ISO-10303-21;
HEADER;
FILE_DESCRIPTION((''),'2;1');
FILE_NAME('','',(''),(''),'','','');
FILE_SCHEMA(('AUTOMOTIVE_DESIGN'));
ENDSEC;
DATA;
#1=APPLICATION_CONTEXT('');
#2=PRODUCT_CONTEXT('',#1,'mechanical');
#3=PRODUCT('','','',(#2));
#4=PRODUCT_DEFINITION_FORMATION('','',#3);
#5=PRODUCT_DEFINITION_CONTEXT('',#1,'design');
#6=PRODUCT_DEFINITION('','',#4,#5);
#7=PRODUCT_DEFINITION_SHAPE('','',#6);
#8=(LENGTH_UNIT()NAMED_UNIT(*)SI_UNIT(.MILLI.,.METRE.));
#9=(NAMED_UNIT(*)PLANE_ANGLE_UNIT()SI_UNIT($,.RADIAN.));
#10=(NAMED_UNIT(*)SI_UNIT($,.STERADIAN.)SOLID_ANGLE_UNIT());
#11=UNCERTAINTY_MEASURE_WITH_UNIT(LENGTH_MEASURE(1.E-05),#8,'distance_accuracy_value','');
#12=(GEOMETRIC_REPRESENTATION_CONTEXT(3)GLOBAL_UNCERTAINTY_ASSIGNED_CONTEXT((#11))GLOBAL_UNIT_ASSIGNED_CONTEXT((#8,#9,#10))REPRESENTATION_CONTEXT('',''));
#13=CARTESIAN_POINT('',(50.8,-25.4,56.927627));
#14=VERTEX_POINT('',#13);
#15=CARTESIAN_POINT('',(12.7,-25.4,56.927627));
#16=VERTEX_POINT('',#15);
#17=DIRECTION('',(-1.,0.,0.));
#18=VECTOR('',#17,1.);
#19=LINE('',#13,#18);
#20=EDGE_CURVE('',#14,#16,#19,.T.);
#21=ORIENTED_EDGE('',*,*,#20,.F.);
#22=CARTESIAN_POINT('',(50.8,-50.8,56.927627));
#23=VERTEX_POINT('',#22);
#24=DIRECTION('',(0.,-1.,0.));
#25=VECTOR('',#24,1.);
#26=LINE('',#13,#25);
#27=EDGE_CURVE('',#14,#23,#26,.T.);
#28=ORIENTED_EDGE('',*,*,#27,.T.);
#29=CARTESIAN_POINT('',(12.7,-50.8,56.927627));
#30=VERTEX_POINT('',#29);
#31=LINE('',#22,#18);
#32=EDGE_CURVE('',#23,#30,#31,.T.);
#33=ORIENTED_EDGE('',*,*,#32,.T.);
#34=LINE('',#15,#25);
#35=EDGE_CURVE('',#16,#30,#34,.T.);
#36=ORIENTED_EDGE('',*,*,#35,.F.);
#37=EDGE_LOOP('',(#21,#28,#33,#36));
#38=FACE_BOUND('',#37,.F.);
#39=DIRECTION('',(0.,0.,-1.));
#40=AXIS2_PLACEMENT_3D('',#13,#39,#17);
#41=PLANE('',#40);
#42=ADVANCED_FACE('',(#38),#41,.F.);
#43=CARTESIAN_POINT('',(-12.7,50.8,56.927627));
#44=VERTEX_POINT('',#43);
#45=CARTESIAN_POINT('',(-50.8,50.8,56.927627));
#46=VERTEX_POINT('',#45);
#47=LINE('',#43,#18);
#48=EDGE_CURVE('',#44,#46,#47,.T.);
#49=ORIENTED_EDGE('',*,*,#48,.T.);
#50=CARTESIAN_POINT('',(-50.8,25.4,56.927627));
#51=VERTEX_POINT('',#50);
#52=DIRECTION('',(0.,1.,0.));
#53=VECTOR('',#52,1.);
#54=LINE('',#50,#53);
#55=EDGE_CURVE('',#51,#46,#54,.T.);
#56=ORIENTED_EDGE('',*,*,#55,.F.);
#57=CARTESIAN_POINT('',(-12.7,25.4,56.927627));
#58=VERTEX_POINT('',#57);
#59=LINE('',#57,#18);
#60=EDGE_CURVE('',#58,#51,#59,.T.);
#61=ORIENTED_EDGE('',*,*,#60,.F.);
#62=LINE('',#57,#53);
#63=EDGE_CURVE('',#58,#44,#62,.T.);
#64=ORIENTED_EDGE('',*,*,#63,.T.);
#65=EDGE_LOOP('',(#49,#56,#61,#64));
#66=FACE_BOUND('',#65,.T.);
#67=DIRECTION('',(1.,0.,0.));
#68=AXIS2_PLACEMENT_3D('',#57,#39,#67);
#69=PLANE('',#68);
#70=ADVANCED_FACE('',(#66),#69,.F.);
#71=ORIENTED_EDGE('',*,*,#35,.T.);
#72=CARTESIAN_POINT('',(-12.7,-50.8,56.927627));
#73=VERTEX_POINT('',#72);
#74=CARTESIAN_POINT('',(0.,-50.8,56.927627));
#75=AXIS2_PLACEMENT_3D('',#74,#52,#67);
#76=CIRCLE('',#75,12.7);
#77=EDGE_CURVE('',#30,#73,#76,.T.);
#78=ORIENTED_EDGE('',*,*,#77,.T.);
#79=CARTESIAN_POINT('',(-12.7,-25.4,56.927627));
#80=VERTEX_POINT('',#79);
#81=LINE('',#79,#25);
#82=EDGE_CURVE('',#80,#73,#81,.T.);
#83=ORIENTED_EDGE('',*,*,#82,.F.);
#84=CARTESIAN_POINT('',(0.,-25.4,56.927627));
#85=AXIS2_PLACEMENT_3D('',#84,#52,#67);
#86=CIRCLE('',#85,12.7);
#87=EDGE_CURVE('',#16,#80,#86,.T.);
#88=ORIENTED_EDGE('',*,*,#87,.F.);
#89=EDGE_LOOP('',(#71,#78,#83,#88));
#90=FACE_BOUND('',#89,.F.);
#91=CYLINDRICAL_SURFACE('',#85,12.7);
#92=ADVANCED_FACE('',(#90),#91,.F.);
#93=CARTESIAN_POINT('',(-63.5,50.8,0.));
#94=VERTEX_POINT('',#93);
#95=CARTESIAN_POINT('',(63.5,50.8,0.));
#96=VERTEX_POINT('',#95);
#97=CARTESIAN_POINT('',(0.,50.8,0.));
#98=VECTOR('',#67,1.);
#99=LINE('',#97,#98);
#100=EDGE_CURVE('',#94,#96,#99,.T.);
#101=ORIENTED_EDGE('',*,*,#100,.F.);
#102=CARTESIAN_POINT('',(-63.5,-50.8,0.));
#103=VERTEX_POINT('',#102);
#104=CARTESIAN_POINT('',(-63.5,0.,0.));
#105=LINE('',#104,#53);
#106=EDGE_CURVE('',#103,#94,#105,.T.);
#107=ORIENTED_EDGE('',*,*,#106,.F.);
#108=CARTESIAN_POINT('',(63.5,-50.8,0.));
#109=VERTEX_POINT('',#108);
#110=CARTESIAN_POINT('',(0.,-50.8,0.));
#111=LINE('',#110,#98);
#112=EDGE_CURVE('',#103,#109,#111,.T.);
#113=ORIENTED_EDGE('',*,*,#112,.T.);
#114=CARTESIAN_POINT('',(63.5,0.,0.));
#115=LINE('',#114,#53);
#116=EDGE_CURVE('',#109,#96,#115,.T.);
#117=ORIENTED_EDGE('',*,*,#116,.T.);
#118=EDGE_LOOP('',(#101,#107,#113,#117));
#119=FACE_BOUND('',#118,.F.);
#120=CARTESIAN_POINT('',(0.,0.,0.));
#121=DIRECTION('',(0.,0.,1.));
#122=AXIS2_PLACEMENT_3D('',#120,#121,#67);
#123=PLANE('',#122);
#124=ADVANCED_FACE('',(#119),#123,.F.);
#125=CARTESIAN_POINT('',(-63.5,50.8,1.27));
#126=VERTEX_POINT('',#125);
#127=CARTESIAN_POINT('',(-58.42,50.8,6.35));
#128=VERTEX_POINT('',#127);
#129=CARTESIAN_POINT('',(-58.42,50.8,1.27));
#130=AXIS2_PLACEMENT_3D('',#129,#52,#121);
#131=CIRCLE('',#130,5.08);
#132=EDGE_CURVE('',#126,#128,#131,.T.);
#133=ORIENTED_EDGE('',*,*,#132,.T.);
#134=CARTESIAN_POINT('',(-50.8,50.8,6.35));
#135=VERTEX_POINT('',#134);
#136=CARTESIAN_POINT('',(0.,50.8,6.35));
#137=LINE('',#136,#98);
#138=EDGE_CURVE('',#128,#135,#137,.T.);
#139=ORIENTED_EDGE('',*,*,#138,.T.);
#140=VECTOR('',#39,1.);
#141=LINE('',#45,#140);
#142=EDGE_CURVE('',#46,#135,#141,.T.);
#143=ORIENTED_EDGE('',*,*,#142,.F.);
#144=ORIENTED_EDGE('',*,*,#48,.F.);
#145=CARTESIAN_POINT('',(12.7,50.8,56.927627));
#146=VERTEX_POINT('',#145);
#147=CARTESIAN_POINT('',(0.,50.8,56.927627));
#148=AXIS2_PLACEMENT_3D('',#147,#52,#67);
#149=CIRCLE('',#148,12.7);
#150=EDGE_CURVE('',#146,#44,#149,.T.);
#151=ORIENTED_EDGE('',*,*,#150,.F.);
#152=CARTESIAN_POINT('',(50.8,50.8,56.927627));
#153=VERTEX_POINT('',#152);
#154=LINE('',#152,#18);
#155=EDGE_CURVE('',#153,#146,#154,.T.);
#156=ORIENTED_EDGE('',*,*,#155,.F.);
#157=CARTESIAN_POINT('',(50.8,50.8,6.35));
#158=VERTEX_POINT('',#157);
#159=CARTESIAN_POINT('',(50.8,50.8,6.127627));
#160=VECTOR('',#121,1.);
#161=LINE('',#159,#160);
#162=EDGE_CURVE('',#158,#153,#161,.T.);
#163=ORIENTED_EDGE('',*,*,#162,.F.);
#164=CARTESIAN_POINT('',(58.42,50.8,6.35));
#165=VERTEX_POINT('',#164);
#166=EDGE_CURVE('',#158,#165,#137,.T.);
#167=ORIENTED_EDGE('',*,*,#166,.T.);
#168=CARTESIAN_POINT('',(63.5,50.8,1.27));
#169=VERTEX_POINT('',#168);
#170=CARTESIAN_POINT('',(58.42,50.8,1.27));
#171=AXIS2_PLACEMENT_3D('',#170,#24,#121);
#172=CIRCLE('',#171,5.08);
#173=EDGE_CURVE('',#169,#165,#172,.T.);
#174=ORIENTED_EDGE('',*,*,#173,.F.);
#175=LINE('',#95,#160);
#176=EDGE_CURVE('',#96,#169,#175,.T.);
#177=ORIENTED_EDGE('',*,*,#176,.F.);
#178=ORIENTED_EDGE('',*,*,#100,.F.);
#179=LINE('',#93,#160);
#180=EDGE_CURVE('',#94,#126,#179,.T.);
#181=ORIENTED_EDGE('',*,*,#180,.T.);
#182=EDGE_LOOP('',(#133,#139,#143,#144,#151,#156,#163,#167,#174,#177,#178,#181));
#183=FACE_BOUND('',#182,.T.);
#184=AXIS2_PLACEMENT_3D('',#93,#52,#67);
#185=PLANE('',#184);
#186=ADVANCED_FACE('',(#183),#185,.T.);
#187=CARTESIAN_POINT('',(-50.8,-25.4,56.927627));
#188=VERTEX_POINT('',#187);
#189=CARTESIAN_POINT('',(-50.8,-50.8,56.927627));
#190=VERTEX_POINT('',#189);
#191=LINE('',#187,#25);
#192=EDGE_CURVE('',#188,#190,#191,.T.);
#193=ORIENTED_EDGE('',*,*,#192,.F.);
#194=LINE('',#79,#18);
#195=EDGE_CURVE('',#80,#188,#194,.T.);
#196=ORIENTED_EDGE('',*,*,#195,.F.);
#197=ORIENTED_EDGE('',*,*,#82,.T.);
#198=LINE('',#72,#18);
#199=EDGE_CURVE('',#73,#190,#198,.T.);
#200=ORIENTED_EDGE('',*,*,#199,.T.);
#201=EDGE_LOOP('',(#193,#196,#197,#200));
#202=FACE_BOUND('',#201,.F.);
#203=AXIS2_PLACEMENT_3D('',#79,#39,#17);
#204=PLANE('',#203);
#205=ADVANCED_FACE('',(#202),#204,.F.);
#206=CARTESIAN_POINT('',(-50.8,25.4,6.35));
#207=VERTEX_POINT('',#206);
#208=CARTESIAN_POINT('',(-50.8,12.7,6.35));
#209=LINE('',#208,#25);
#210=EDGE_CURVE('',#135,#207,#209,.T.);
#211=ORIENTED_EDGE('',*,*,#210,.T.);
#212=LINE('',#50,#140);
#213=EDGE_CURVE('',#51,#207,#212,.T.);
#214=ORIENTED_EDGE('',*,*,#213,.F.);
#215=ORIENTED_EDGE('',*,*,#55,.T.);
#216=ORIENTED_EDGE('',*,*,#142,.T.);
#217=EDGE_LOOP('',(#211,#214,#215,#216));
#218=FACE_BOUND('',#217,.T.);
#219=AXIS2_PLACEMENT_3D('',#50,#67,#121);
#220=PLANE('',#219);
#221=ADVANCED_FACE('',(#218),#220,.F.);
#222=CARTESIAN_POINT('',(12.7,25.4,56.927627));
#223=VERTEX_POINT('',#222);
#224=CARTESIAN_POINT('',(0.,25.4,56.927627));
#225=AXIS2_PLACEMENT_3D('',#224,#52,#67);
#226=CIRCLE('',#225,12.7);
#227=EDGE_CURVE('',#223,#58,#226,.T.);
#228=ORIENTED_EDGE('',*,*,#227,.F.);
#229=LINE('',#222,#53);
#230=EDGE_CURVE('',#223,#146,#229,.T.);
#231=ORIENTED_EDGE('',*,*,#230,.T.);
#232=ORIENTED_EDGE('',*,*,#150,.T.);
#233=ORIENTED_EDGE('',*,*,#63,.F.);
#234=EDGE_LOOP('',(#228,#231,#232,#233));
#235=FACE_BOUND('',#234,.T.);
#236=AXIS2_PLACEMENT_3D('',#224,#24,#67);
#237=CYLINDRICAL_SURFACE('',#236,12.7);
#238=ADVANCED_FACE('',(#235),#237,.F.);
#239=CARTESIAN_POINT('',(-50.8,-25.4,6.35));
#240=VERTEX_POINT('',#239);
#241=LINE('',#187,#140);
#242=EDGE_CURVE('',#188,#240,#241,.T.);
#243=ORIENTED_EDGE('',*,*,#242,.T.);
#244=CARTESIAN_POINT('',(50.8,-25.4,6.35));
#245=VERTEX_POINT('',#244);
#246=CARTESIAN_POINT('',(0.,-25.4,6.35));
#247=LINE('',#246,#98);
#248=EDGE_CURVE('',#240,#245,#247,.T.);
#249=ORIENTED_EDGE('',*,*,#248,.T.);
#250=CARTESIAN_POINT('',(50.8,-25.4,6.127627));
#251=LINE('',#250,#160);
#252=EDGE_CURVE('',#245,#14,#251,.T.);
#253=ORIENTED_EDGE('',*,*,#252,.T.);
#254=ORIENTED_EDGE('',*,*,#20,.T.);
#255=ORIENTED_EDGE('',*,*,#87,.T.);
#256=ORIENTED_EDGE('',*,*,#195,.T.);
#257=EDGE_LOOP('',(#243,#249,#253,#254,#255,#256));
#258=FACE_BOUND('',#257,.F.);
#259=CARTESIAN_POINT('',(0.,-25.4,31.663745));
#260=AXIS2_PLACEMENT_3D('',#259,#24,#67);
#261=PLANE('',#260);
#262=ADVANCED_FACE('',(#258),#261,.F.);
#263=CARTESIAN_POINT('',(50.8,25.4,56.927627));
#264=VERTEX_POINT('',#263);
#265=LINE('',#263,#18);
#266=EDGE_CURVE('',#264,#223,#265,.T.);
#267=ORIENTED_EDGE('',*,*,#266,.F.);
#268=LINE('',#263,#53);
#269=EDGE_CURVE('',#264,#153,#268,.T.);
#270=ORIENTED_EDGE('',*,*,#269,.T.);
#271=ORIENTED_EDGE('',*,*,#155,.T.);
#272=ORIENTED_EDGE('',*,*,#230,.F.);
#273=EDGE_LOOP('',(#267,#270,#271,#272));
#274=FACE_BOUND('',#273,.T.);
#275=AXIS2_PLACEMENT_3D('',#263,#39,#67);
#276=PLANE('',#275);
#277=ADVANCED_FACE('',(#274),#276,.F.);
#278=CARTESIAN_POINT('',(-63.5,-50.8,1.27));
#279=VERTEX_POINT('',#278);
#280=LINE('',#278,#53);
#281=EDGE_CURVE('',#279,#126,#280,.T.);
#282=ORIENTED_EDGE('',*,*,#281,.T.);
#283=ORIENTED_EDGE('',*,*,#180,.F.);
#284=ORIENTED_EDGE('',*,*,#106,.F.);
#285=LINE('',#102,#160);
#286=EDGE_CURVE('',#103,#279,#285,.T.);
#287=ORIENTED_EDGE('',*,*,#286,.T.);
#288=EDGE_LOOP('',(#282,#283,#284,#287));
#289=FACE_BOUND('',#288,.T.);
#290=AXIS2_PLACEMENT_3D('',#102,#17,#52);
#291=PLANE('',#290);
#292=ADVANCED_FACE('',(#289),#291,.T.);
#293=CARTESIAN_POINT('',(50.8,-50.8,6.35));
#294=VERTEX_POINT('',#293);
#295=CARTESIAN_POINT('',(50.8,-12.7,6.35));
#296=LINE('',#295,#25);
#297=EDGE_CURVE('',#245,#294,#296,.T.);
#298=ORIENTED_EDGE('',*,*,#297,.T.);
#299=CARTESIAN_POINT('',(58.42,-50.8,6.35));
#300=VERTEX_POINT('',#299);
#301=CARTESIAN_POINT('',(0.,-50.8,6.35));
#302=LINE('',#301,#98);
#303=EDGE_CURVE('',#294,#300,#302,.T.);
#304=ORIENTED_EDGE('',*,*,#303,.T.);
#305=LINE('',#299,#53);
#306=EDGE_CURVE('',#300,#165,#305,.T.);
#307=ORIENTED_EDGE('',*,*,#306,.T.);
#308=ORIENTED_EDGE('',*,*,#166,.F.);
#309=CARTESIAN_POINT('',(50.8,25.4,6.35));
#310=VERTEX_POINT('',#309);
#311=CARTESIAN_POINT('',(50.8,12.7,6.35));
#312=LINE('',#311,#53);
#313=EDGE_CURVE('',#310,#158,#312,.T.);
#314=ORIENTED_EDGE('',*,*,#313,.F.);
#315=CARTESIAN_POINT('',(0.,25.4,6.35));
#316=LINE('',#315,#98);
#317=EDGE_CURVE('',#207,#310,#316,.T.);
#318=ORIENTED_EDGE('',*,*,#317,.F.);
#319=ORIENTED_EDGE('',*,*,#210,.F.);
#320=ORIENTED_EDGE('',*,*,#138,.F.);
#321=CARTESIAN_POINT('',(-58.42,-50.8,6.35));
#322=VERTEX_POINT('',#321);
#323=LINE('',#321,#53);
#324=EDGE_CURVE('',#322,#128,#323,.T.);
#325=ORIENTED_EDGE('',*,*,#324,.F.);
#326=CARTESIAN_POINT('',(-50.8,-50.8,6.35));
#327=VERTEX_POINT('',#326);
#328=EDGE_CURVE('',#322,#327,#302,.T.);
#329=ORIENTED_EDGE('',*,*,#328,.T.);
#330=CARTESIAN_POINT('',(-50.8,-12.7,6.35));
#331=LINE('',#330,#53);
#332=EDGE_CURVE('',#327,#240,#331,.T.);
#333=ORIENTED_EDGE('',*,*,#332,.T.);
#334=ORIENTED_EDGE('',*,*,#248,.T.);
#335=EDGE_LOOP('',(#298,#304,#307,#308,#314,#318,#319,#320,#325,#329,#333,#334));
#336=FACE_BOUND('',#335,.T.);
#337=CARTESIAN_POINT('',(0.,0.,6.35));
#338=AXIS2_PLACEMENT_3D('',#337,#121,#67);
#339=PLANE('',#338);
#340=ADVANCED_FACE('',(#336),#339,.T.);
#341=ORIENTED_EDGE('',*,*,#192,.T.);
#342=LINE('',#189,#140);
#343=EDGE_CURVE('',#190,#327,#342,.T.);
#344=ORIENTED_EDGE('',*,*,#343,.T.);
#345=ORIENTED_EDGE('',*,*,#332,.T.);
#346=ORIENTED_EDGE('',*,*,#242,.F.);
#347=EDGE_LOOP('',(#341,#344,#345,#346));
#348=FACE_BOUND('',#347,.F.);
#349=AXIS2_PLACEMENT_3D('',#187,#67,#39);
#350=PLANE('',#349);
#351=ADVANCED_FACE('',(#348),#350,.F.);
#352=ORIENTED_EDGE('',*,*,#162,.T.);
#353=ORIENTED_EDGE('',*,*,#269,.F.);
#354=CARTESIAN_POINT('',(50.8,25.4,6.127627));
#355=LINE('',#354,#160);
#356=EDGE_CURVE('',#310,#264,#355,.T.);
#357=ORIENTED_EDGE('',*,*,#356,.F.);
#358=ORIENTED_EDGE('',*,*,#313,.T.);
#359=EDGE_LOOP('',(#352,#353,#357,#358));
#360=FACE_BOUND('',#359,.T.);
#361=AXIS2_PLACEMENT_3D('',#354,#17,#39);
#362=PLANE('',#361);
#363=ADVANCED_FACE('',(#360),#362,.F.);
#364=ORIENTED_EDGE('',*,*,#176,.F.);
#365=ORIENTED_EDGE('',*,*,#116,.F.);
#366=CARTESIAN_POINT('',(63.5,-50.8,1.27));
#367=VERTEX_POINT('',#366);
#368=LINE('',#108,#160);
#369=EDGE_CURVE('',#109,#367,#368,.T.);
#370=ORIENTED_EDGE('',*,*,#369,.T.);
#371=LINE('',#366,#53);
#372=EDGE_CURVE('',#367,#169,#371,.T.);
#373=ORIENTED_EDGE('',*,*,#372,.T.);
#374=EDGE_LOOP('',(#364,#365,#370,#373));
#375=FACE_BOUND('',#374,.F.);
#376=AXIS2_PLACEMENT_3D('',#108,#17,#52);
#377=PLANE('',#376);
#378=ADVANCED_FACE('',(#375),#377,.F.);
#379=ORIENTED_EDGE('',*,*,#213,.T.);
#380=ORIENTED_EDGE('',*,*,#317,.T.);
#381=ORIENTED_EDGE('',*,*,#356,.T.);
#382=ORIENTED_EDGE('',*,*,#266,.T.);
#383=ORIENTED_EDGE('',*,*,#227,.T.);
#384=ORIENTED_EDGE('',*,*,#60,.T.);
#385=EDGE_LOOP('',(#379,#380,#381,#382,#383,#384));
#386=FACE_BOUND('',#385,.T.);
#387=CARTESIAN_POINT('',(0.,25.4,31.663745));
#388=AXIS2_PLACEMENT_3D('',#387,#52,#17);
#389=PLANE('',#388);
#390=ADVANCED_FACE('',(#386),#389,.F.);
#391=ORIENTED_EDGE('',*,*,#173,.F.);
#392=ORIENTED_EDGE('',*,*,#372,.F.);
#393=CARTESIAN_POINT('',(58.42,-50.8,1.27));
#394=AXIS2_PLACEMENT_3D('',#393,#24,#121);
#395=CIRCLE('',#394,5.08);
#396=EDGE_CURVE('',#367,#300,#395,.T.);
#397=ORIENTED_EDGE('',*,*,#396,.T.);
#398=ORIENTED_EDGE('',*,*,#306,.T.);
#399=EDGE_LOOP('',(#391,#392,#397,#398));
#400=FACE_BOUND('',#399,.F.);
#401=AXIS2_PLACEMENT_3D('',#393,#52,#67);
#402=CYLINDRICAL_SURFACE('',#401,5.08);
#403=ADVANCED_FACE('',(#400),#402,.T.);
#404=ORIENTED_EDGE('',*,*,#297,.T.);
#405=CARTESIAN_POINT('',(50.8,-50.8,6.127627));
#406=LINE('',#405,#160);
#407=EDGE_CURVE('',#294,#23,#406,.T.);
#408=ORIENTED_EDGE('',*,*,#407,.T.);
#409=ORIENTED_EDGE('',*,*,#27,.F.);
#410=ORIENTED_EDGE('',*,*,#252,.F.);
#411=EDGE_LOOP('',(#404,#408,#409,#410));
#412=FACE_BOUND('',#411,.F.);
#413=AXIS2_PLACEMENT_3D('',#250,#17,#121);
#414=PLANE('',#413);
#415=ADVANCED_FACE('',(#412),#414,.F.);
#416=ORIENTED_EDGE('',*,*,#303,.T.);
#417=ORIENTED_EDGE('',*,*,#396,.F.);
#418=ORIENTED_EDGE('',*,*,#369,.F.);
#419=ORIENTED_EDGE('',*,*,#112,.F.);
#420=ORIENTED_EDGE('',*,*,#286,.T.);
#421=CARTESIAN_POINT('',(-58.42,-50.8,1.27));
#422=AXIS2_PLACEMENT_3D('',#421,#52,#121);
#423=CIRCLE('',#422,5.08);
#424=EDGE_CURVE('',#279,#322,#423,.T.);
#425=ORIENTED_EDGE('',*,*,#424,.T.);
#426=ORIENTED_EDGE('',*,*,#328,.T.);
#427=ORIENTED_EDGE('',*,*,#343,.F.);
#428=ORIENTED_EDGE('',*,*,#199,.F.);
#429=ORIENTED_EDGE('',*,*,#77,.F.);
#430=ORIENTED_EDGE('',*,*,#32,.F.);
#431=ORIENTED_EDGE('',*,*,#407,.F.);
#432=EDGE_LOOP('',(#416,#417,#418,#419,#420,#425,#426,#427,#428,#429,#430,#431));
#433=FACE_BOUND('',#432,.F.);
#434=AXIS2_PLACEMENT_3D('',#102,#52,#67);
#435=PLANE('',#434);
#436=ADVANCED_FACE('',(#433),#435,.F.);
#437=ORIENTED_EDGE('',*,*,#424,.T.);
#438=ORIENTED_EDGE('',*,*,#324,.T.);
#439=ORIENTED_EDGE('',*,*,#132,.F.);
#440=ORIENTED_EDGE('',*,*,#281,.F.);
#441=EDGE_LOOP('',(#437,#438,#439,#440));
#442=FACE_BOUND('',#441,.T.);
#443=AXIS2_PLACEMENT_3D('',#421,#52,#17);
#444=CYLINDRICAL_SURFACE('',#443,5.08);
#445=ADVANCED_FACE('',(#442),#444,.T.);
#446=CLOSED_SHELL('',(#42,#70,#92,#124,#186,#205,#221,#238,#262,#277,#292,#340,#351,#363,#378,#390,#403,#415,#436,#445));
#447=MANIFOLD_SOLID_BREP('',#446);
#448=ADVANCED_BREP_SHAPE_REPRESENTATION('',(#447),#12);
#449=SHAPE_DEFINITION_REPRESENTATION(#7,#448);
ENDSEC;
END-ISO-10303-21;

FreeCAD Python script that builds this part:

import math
import FreeCAD as App
import Part
import Sketcher

V = App.Vector
Q = App.Units.Quantity


def edges_at(feature, points):
    """Names of the edges that pass closest to the given points."""
    edges = feature.Shape.Edges
    near = lambda p: min(range(len(edges)), key=lambda i: edges[i].distToShape(Part.Vertex(*p))[0])
    return sorted({f"Edge{near(p) + 1}" for p in points})

doc = App.newDocument("Part")
body = doc.addObject("PartDesign::Body", "Body")

# Sketch on XY plane
sketch1 = body.newObject("Sketcher::SketchObject", "Sketch")
sketch1.AttachmentSupport = (doc.getObject("XY_Plane"), [""])
sketch1.MapMode = "FlatFace"
sketch1.addGeometry(Part.LineSegment(V(-63.5, 50.8, 0), V(-63.5, -50.8, 0)), False)
sketch1.addGeometry(Part.LineSegment(V(-63.5, -50.8, 0), V(63.5, -50.8, 0)), False)
sketch1.addGeometry(Part.LineSegment(V(63.5, -50.8, 0), V(63.5, 50.8, 0)), False)
sketch1.addGeometry(Part.LineSegment(V(63.5, 50.8, 0), V(-63.5, 50.8, 0)), False)
sketch1.addConstraint(Sketcher.Constraint("Coincident", 0, 2, 1, 1))
sketch1.addConstraint(Sketcher.Constraint("Coincident", 1, 2, 2, 1))
sketch1.addConstraint(Sketcher.Constraint("Coincident", 2, 2, 3, 1))
sketch1.addConstraint(Sketcher.Constraint("Coincident", 3, 2, 0, 1))
sketch1.addConstraint(Sketcher.Constraint("Vertical", 0))
sketch1.addConstraint(Sketcher.Constraint("Horizontal", 1))
sketch1.addConstraint(Sketcher.Constraint("Vertical", 2))
sketch1.addConstraint(Sketcher.Constraint("Horizontal", 3))
sketch1.addConstraint(Sketcher.Constraint("Symmetric", 0, 2, 2, 2, -1, 1))
sketch1.addConstraint(Sketcher.Constraint("DistanceX", 1, 1, 1, 2, Q("5 in")))
sketch1.addConstraint(Sketcher.Constraint("DistanceY", 0, 2, 0, 1, Q("4 in")))
pad1 = body.newObject("PartDesign::Pad", "Pad")
pad1.Profile = sketch1
pad1.Length = Q("0.25 in")
doc.recompute()

fillet = body.newObject("PartDesign::Fillet", "Fillet")
fillet.Base = (pad1, edges_at(pad1, [(63.5, 0, 6.35), (-63.5, 0, 6.35)]))
fillet.Radius = Q("0.2 in")

# Sketch on XZ plane
sketch2 = body.newObject("Sketcher::SketchObject", "Sketch001")
sketch2.AttachmentSupport = (doc.getObject("XZ_Plane"), [""])
sketch2.MapMode = "FlatFace"
sketch2.AttachmentOffset = App.Placement(V(0, 0, 1 * 25.4), App.Rotation())
sketch2.addGeometry(Part.LineSegment(V(-50.8, 6.127627, 0), V(50.8, 6.127627, 0)), False)
sketch2.addGeometry(Part.LineSegment(V(50.8, 6.127627, 0), V(50.8, 56.927627, 0)), False)
sketch2.addGeometry(Part.LineSegment(V(50.8, 56.927627, 0), V(12.7, 56.927627, 0)), False)
sketch2.addGeometry(Part.ArcOfCircle(Part.Circle(V(0, 56.927627, 0), V(0, 0, 1), 12.7), math.radians(180), math.radians(360)), False)
sketch2.addGeometry(Part.LineSegment(V(-12.7, 56.927627, 0), V(-50.8, 56.927627, 0)), False)
sketch2.addGeometry(Part.LineSegment(V(-50.8, 56.927627, 0), V(-50.8, 6.127627, 0)), False)
sketch2.addConstraint(Sketcher.Constraint("Coincident", 0, 2, 1, 1))
sketch2.addConstraint(Sketcher.Constraint("Coincident", 1, 2, 2, 1))
sketch2.addConstraint(Sketcher.Constraint("Coincident", 2, 2, 3, 2))
sketch2.addConstraint(Sketcher.Constraint("Coincident", 3, 1, 4, 1))
sketch2.addConstraint(Sketcher.Constraint("Coincident", 4, 2, 5, 1))
sketch2.addConstraint(Sketcher.Constraint("Coincident", 5, 2, 0, 1))
sketch2.addConstraint(Sketcher.Constraint("Horizontal", 0))
sketch2.addConstraint(Sketcher.Constraint("Vertical", 1))
sketch2.addConstraint(Sketcher.Constraint("Horizontal", 2))
sketch2.addConstraint(Sketcher.Constraint("Horizontal", 4))
sketch2.addConstraint(Sketcher.Constraint("Vertical", 5))
sketch2.addConstraint(Sketcher.Constraint("Symmetric", 2, 2, 3, 1, -2))
sketch2.addConstraint(Sketcher.Constraint("Horizontal", 3, 3, 1, 2))
sketch2.addConstraint(Sketcher.Constraint("Equal", 2, 4))
sketch2.addConstraint(Sketcher.Constraint("Radius", 3, Q("0.5 in")))
sketch2.addConstraint(Sketcher.Constraint("DistanceX", 0, 1, 0, 2, Q("4 in")))
sketch2.addConstraint(Sketcher.Constraint("DistanceY", 1, 1, 1, 2, Q("2 in")))
sketch2.addConstraint(Sketcher.Constraint("DistanceY", -1, 1, 3, 3, 56.927627))
pad2 = body.newObject("PartDesign::Pad", "Pad001")
pad2.Profile = sketch2
pad2.Length = Q("1 in")
body2 = doc.addObject("PartDesign::Body", "Body001")
doc.recompute()

body2.BaseFeature = body
doc.recompute()

mirroring = doc.addObject("Part::Mirroring", "Mirroring")
mirroring.Source = body
mirroring.Base = V(0, 0, 0)
mirroring.Normal = V(0, -1, 0)
body3 = doc.addObject("PartDesign::Body", "Body002")
body3.BaseFeature = mirroring
boolean = body2.newObject("PartDesign::Boolean", "Boolean")
boolean.Type = "Fuse"
boolean.addObjects([body3])
doc.recompute()
mirroring.Visibility = False

doc.recompute()
